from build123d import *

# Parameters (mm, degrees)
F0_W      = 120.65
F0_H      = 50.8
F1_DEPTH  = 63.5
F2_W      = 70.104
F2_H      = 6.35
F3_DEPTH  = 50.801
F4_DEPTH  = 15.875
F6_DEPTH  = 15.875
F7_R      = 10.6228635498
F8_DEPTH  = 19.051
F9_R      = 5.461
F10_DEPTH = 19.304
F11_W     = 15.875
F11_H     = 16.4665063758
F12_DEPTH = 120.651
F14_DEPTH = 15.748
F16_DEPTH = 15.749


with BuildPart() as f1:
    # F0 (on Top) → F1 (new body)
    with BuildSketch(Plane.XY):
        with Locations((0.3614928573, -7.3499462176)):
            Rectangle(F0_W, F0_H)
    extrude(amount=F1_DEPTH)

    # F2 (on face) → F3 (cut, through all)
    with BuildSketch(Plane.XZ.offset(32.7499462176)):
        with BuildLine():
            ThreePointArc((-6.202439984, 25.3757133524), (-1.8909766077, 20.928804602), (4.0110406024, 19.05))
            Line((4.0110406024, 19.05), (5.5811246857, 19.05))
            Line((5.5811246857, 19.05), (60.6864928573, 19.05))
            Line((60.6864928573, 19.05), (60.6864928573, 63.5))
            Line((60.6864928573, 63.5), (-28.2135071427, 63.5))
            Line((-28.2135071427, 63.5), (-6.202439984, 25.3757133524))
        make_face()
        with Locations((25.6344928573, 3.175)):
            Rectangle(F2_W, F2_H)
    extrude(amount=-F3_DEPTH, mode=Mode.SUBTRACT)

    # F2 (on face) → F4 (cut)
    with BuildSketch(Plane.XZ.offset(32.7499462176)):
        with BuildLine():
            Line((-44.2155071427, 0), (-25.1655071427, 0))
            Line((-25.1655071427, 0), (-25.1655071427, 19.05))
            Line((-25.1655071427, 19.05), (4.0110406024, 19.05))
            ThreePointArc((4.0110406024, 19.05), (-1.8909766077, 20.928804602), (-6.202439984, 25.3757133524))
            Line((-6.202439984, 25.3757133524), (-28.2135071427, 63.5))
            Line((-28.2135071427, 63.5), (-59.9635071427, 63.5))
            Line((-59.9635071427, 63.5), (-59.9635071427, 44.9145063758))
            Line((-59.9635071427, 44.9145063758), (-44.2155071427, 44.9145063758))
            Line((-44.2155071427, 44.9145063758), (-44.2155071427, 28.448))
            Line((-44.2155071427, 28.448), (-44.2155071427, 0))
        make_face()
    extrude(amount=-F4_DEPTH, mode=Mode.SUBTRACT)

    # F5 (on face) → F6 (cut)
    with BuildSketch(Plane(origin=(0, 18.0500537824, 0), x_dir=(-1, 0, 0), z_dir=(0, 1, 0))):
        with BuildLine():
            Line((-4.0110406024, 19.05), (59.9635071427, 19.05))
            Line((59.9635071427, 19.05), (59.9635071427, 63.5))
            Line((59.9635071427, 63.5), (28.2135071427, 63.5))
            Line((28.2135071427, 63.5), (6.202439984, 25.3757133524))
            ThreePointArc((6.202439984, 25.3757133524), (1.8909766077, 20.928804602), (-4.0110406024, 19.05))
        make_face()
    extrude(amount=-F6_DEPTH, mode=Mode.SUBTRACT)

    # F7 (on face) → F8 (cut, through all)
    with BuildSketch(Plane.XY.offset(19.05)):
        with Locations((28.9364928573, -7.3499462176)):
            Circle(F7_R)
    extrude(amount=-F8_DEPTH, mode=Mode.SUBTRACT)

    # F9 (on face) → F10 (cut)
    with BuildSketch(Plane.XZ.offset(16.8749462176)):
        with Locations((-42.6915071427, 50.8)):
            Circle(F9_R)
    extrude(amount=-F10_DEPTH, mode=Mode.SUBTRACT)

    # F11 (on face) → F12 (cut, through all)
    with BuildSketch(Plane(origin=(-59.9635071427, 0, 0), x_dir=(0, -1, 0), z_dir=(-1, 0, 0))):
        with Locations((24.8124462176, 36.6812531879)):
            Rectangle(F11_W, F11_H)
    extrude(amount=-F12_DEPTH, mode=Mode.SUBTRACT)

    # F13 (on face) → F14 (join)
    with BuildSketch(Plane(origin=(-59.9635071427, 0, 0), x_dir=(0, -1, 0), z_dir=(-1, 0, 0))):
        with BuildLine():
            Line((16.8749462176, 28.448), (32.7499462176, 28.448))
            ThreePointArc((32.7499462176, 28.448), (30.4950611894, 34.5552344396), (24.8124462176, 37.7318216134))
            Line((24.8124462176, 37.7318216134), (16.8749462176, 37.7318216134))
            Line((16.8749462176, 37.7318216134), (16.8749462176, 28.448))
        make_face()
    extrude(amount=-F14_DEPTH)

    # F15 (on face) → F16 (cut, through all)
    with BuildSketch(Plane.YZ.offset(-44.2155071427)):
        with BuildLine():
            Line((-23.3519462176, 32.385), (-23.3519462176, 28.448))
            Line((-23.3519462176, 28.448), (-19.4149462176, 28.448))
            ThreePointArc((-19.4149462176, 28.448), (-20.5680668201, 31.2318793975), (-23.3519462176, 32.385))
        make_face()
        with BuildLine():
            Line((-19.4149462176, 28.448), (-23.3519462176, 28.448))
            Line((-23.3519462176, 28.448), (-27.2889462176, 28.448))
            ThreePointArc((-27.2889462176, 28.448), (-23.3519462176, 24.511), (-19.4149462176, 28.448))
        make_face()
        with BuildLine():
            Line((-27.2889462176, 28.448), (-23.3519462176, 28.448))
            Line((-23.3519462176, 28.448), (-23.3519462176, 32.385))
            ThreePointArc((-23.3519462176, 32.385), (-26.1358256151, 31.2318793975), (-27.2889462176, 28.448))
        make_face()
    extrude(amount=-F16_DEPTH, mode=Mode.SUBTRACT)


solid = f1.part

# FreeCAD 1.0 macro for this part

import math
import FreeCAD as App
import Part
import Sketcher

V = App.Vector
Q = App.Units.Quantity


def add_polygon(sketch, points):
    """Adds a closed chain of lines whose ends are joined by coincident constraints."""
    first, n = sketch.GeometryCount, len(points)
    for a, b in zip(points, points[1:] + points[:1]):
        sketch.addGeometry(Part.LineSegment(App.Vector(*a, 0), App.Vector(*b, 0)), False)
    for i in range(n):
        sketch.addConstraint(Sketcher.Constraint("Coincident", first + i, 2, first + (i + 1) % n, 1))

doc = App.newDocument("Part")
params = doc.addObject("Spreadsheet::Sheet", "Params")
for row, (alias, value) in enumerate([
    ("sketch1_height", "2 in"),
    ("sketch1_width", "4.75 in"),
    ("pad1_length", "2.5 in"),
    ("sketch2_radius", "0.5 in"),
    ("sketch2_width", "3.5 in"),
    ("sketch2_width2", "2.76 in"),
    ("sketch2_height", "1.75 in"),
    ("sketch2_height2", "0.25 in"),
    ("sketch3_radius", "0.5 in"),
    ("sketch3_width", "0.75 in"),
    ("sketch3_width2", "1.25 in"),
    ("sketch3_width3", "0.62 in"),
    ("pocket2_length", "0.625 in"),
    ("sketch4_radius", "0.5 in"),
    ("sketch4_width", "1.25 in"),
    ("sketch4_height", "1.75 in"),
    ("pocket3_length", "0.625 in"),
    ("sketch6_diameter", "0.43 in"),
    ("pocket5_length", "0.76 in"),
    ("sketch7_width", "0.625 in"),
    ("sketch8_radius", "0.37 in"),
    ("sketch8_width", "0.625 in"),
    ("sketch8_width2", "0.3125 in"),
    ("pad2_length", "0.62 in"),
    ("sketch9_radius", "0.155 in"),
], start=1):
    params.set(f"A{row}", alias)
    params.set(f"B{row}", "=" + value)
    params.setAlias(f"B{row}", alias)

body = doc.addObject("PartDesign::Body", "Body")

# Sketch on XY plane
sketch1 = doc.addObject("Sketcher::SketchObject", "Sketch")
body.addObject(sketch1)
sketch1.AttachmentSupport = (doc.XY_Plane, [""])
sketch1.MapMode = "FlatFace"
add_polygon(sketch1, [(-60, 18), (-60, -33), (61, -33), (61, 18)])  # lines 0-3
sketch1.addConstraint(Sketcher.Constraint("Vertical", 0))
sketch1.addConstraint(Sketcher.Constraint("Horizontal", 1))
sketch1.addConstraint(Sketcher.Constraint("Vertical", 2))
sketch1.addConstraint(Sketcher.Constraint("Horizontal", 3))
sketch1.addConstraint(Sketcher.Constraint("DistanceY", 0, 2, 0, 1, Q("2 in")))
sketch1.addConstraint(Sketcher.Constraint("DistanceX", 1, 1, 1, 2, Q("4.75 in")))
sketch1.addConstraint(Sketcher.Constraint("DistanceX", 0, 2, -1, 1, 59.963507))
sketch1.addConstraint(Sketcher.Constraint("DistanceY", 0, 2, -1, 1, 32.749946))
sketch1.setExpression("Constraints[8]", "Params.sketch1_height")
sketch1.setExpression("Constraints[9]", "Params.sketch1_width")
pad1 = doc.addObject("PartDesign::Pad", "Pad")
body.addObject(pad1)
pad1.Profile = sketch1
pad1.setExpression("Length", "Params.pad1_length")

# Sketch on XZ plane
sketch2 = doc.addObject("Sketcher::SketchObject", "Sketch001")
body.addObject(sketch2)
sketch2.AttachmentSupport = (doc.XZ_Plane, [""])
sketch2.MapMode = "FlatFace"
sketch2.AttachmentOffset = App.Placement(V(0, 0, 32.749946), App.Rotation())
sketch2.addGeometry(Part.ArcOfCircle(Part.Circle(V(5, 32, 0), V(0, 0, 1), 13), math.radians(-150), math.radians(-94)), False)  # 0
sketch2.addGeometry(Part.LineSegment(V(4, 19, 0), V(61, 19, 0)), False)  # 1
sketch2.addGeometry(Part.LineSegment(V(61, 19, 0), V(61, 64, 0)), False)  # 2
sketch2.addGeometry(Part.LineSegment(V(61, 64, 0), V(-28, 64, 0)), False)  # 3
sketch2.addGeometry(Part.LineSegment(V(-28, 64, 0), V(-6, 25, 0)), False)  # 4
add_polygon(sketch2, [(-9, 6), (-9, 0), (61, 0), (61, 6)])  # lines 5-8
sketch2.addConstraint(Sketcher.Constraint("Coincident", 0, 2, 1, 1))
sketch2.addConstraint(Sketcher.Constraint("Coincident", 1, 2, 2, 1))
sketch2.addConstraint(Sketcher.Constraint("Coincident", 2, 2, 3, 1))
sketch2.addConstraint(Sketcher.Constraint("Coincident", 3, 2, 4, 1))
sketch2.addConstraint(Sketcher.Constraint("Tangent", 4, 2, 0, 1))
sketch2.addConstraint(Sketcher.Constraint("Horizontal", 1))
sketch2.addConstraint(Sketcher.Constraint("Vertical", 2))
sketch2.addConstraint(Sketcher.Constraint("Horizontal", 3))
sketch2.addConstraint(Sketcher.Constraint("Vertical", 5))
sketch2.addConstraint(Sketcher.Constraint("Horizontal", 6))
sketch2.addConstraint(Sketcher.Constraint("Vertical", 7))
sketch2.addConstraint(Sketcher.Constraint("Horizontal", 8))
sketch2.addConstraint(Sketcher.Constraint("PointOnObject", 5, 2, -1))
sketch2.addConstraint(Sketcher.Constraint("Vertical", 2, 2, 6, 2))
sketch2.addConstraint(Sketcher.Constraint("Radius", 0, Q("0.5 in")))
sketch2.addConstraint(Sketcher.Constraint("DistanceX", 3, 2, 3, 1, Q("3.5 in")))
sketch2.addConstraint(Sketcher.Constraint("Angle", 4, Q("-60 deg")))
sketch2.addConstraint(Sketcher.Constraint("DistanceX", 6, 1, 6, 2, Q("2.76 in")))
sketch2.addConstraint(Sketcher.Constraint("DistanceY", 2, 1, 2, 2, Q("1.75 in")))
sketch2.addConstraint(Sketcher.Constraint("DistanceY", 5, 2, 5, 1, Q("0.25 in")))
sketch2.addConstraint(Sketcher.Constraint("DistanceY", -1, 1, 2, 2, Q("2.5 in")))
sketch2.addConstraint(Sketcher.Constraint("DistanceX", 1, 1, 1, 2, 56.675452))
sketch2.addConstraint(Sketcher.Constraint("DistanceX", -1, 1, 0, 2, 4.011041))
sketch2.setExpression("Constraints[18]", "Params.sketch2_radius")
sketch2.setExpression("Constraints[19]", "Params.sketch2_width")
sketch2.setExpression("Constraints[21]", "Params.sketch2_width2")
sketch2.setExpression("Constraints[22]", "Params.sketch2_height")
sketch2.setExpression("Constraints[23]", "Params.sketch2_height2")
pocket1 = doc.addObject("PartDesign::Pocket", "Pocket")
body.addObject(pocket1)
pocket1.Profile = sketch2
pocket1.Type = "ThroughAll"

# Sketch on XZ plane
sketch3 = doc.addObject("Sketcher::SketchObject", "Sketch002")
body.addObject(sketch3)
sketch3.AttachmentSupport = (doc.XZ_Plane, [""])
sketch3.MapMode = "FlatFace"
sketch3.AttachmentOffset = App.Placement(V(0, 0, 32.749946), App.Rotation())
sketch3.addGeometry(Part.LineSegment(V(-44, 0, 0), V(-25, 0, 0)), False)
sketch3.addGeometry(Part.LineSegment(V(-25, 0, 0), V(-25, 19, 0)), False)
sketch3.addGeometry(Part.LineSegment(V(-25, 19, 0), V(4, 19, 0)), False)
sketch3.addGeometry(Part.ArcOfCircle(Part.Circle(V(5, 32, 0), V(0, 0, 1), 13), math.radians(-150), math.radians(-94)), False)
sketch3.addGeometry(Part.LineSegment(V(-6, 25, 0), V(-28, 64, 0)), False)
sketch3.addGeometry(Part.LineSegment(V(-28, 64, 0), V(-60, 64, 0)), False)
sketch3.addGeometry(Part.LineSegment(V(-60, 64, 0), V(-60, 45, 0)), False)
sketch3.addGeometry(Part.LineSegment(V(-60, 45, 0), V(-44, 45, 0)), False)
sketch3.addGeometry(Part.LineSegment(V(-44, 45, 0), V(-44, 0, 0)), False)
sketch3.addConstraint(Sketcher.Constraint("Coincident", 0, 2, 1, 1))
sketch3.addConstraint(Sketcher.Constraint("Coincident", 1, 2, 2, 1))
sketch3.addConstraint(Sketcher.Constraint("Coincident", 2, 2, 3, 2))
sketch3.addConstraint(Sketcher.Constraint("Tangent", 3, 1, 4, 1))
sketch3.addConstraint(Sketcher.Constraint("Coincident", 4, 2, 5, 1))
sketch3.addConstraint(Sketcher.Constraint("Coincident", 5, 2, 6, 1))
sketch3.addConstraint(Sketcher.Constraint("Coincident", 6, 2, 7, 1))
sketch3.addConstraint(Sketcher.Constraint("Coincident", 7, 2, 8, 1))
sketch3.addConstraint(Sketcher.Constraint("Coincident", 8, 2, 0, 1))
sketch3.addConstraint(Sketcher.Constraint("Horizontal", 0))
sketch3.addConstraint(Sketcher.Constraint("Vertical", 1))
sketch3.addConstraint(Sketcher.Constraint("Horizontal", 2))
sketch3.addConstraint(Sketcher.Constraint("Horizontal", 5))
sketch3.addConstraint(Sketcher.Constraint("Vertical", 6))
sketch3.addConstraint(Sketcher.Constraint("Horizontal", 7))
sketch3.addConstraint(Sketcher.Constraint("Vertical", 8))
sketch3.addConstraint(Sketcher.Constraint("PointOnObject", 0, 2, -1))
sketch3.addConstraint(Sketcher.Constraint("Equal", 0, 1))
sketch3.addConstraint(Sketcher.Constraint("Radius", 3, Q("0.5 in")))
sketch3.addConstraint(Sketcher.Constraint("Angle", 4, Q("120 deg")))
sketch3.addConstraint(Sketcher.Constraint("DistanceX", 0, 1, 0, 2, Q("0.75 in")))
sketch3.addConstraint(Sketcher.Constraint("DistanceX", 5, 2, 5, 1, Q("1.25 in")))
sketch3.addConstraint(Sketcher.Constraint("DistanceX", 7, 1, 7, 2, Q("0.62 in")))
sketch3.addConstraint(Sketcher.Constraint("DistanceY", -1, 1, 4, 2, Q("2.5 in")))
sketch3.addConstraint(Sketcher.Constraint("DistanceX", 2, 1, 2, 2, 29.176548))
sketch3.addConstraint(Sketcher.Constraint("DistanceY", 6, 2, 6, 1, 18.585494))
sketch3.addConstraint(Sketcher.Constraint("DistanceX", -1, 1, 2, 2, 4.011041))
sketch3.setExpression("Constraints[18]", "Params.sketch3_radius")
sketch3.setExpression("Constraints[20]", "Params.sketch3_width")
sketch3.setExpression("Constraints[21]", "Params.sketch3_width2")
sketch3.setExpression("Constraints[22]", "Params.sketch3_width3")
pocket2 = doc.addObject("PartDesign::Pocket", "Pocket001")
body.addObject(pocket2)
pocket2.Profile = sketch3
pocket2.setExpression("Length", "Params.pocket2_length")

# Sketch on XZ plane
sketch4 = doc.addObject("Sketcher::SketchObject", "Sketch003")
body.addObject(sketch4)
sketch4.AttachmentSupport = (doc.XZ_Plane, [""])
sketch4.MapMode = "FlatFace"
sketch4.AttachmentOffset = App.Placement(V(0, 0, -18.050054), App.Rotation())
sketch4.addGeometry(Part.LineSegment(V(4, 19, 0), V(-60, 19, 0)), False)
sketch4.addGeometry(Part.LineSegment(V(-60, 19, 0), V(-60, 64, 0)), False)
sketch4.addGeometry(Part.LineSegment(V(-60, 64, 0), V(-28, 64, 0)), False)
sketch4.addGeometry(Part.LineSegment(V(-28, 64, 0), V(-6, 25, 0)), False)
sketch4.addGeometry(Part.ArcOfCircle(Part.Circle(V(5, 32, 0), V(0, 0, 1), 13), math.radians(-150), math.radians(-94)), False)
sketch4.addConstraint(Sketcher.Constraint("Coincident", 0, 2, 1, 1))
sketch4.addConstraint(Sketcher.Constraint("Coincident", 1, 2, 2, 1))
sketch4.addConstraint(Sketcher.Constraint("Coincident", 2, 2, 3, 1))
sketch4.addConstraint(Sketcher.Constraint("Tangent", 3, 2, 4, 1))
sketch4.addConstraint(Sketcher.Constraint("Coincident", 4, 2, 0, 1))
sketch4.addConstraint(Sketcher.Constraint("Horizontal", 0))
sketch4.addConstraint(Sketcher.Constraint("Vertical", 1))
sketch4.addConstraint(Sketcher.Constraint("Horizontal", 2))
sketch4.addConstraint(Sketcher.Constraint("Radius", 4, Q("0.5 in")))
sketch4.addConstraint(Sketcher.Constraint("Angle", 3, Q("-60 deg")))
sketch4.addConstraint(Sketcher.Constraint("DistanceX", 2, 1, 2, 2, Q("1.25 in")))
sketch4.addConstraint(Sketcher.Constraint("DistanceY", 1, 1, 1, 2, Q("1.75 in")))
sketch4.addConstraint(Sketcher.Constraint("DistanceY", -1, 1, 1, 2, Q("2.5 in")))
sketch4.addConstraint(Sketcher.Constraint("DistanceX", 0, 2, 0, 1, 63.974548))
sketch4.addConstraint(Sketcher.Constraint("DistanceX", 3, 2, -1, 1, 6.20244))
sketch4.setExpression("Constraints[8]", "Params.sketch4_radius")
sketch4.setExpression("Constraints[10]", "Params.sketch4_width")
sketch4.setExpression("Constraints[11]", "Params.sketch4_height")
pocket3 = doc.addObject("PartDesign::Pocket", "Pocket002")
body.addObject(pocket3)
pocket3.Profile = sketch4
pocket3.setExpression("Length", "Params.pocket3_length")
pocket3.Reversed = True

# Sketch on XY plane
sketch5 = doc.addObject("Sketcher::SketchObject", "Sketch004")
body.addObject(sketch5)
sketch5.AttachmentSupport = (doc.XY_Plane, [""])
sketch5.MapMode = "FlatFace"
sketch5.AttachmentOffset = App.Placement(V(0, 0, 0.75 * 25.4), App.Rotation())
sketch5.addGeometry(Part.Circle(V(29, -7, 0), V(0, 0, 1), 11), False)
sketch5.addConstraint(Sketcher.Constraint("Diameter", 0, 21.245727))
sketch5.addConstraint(Sketcher.Constraint("DistanceX", -1, 1, 0, 3, 28.936493))
sketch5.addConstraint(Sketcher.Constraint("DistanceY", 0, 3, -1, 1, 7.349946))
pocket4 = doc.addObject("PartDesign::Pocket", "Pocket003")
body.addObject(pocket4)
pocket4.Profile = sketch5
pocket4.Type = "ThroughAll"

# Sketch on XZ plane
sketch6 = doc.addObject("Sketcher::SketchObject", "Sketch005")
body.addObject(sketch6)
sketch6.AttachmentSupport = (doc.XZ_Plane, [""])
sketch6.MapMode = "FlatFace"
sketch6.AttachmentOffset = App.Placement(V(0, 0, 16.874946), App.Rotation())
sketch6.addGeometry(Part.Circle(V(-43, 51, 0), V(0, 0, 1), 5), False)
sketch6.addConstraint(Sketcher.Constraint("Diameter", 0, Q("0.43 in")))
sketch6.addConstraint(Sketcher.Constraint("DistanceY", -1, 1, 0, 3, Q("2 in")))
sketch6.addConstraint(Sketcher.Constraint("DistanceX", 0, 3, -1, 1, 42.691507))
sketch6.setExpression("Constraints[0]", "Params.sketch6_diameter")
pocket5 = doc.addObject("PartDesign::Pocket", "Pocket004")
body.addObject(pocket5)
pocket5.Profile = sketch6
pocket5.setExpression("Length", "Params.pocket5_length")

# Sketch on YZ plane
sketch7 = doc.addObject("Sketcher::SketchObject", "Sketch006")
body.addObject(sketch7)
sketch7.AttachmentSupport = (doc.YZ_Plane, [""])
sketch7.MapMode = "FlatFace"
sketch7.AttachmentOffset = App.Placement(V(0, 0, -59.963507), App.Rotation())
add_polygon(sketch7, [(-17, 45), (-17, 28), (-33, 28), (-33, 45)])  # lines 0-3
sketch7.addConstraint(Sketcher.Constraint("Vertical", 0))
sketch7.addConstraint(Sketcher.Constraint("Horizontal", 1))
sketch7.addConstraint(Sketcher.Constraint("Vertical", 2))
sketch7.addConstraint(Sketcher.Constraint("Horizontal", 3))
sketch7.addConstraint(Sketcher.Constraint("DistanceX", 1, 2, 1, 1, Q("0.625 in")))
sketch7.addConstraint(Sketcher.Constraint("DistanceY", -1, 1, 0, 2, Q("1.12 in")))
sketch7.addConstraint(Sketcher.Constraint("DistanceY", 0, 2, 0, 1, 16.466506))
sketch7.addConstraint(Sketcher.Constraint("DistanceX", 0, 2, -1, 1, 16.874946))
sketch7.setExpression("Constraints[8]", "Params.sketch7_width")
pocket6 = doc.addObject("PartDesign::Pocket", "Pocket005")
body.addObject(pocket6)
pocket6.Profile = sketch7
pocket6.Type = "ThroughAll"
pocket6.Reversed = True

# Sketch on YZ plane
sketch8 = doc.addObject("Sketcher::SketchObject", "Sketch007")
body.addObject(sketch8)
sketch8.AttachmentSupport = (doc.YZ_Plane, [""])
sketch8.MapMode = "FlatFace"
sketch8.AttachmentOffset = App.Placement(V(0, 0, -59.963507), App.Rotation())
sketch8.addGeometry(Part.LineSegment(V(-17, 28, 0), V(-33, 28, 0)), False)
sketch8.addGeometry(Part.ArcOfCircle(Part.Circle(V(-23, 28, 0), V(0, 0, 1), 9), math.radians(99), math.radians(180)), False)
sketch8.addGeometry(Part.LineSegment(V(-25, 38, 0), V(-17, 38, 0)), False)
sketch8.addGeometry(Part.LineSegment(V(-17, 38, 0), V(-17, 28, 0)), False)
sketch8.addConstraint(Sketcher.Constraint("Coincident", 0, 2, 1, 2))
sketch8.addConstraint(Sketcher.Constraint("Coincident", 1, 1, 2, 1))
sketch8.addConstraint(Sketcher.Constraint("Coincident", 2, 2, 3, 1))
sketch8.addConstraint(Sketcher.Constraint("Coincident", 3, 2, 0, 1))
sketch8.addConstraint(Sketcher.Constraint("Horizontal", 0))
sketch8.addConstraint(Sketcher.Constraint("Horizontal", 2))
sketch8.addConstraint(Sketcher.Constraint("Vertical", 3))
sketch8.addConstraint(Sketcher.Constraint("Horizontal", 1, 3, 0, 2))
sketch8.addConstraint(Sketcher.Constraint("Radius", 1, Q("0.37 in")))
sketch8.addConstraint(Sketcher.Constraint("DistanceX", 0, 2, 0, 1, Q("0.625 in")))
sketch8.addConstraint(Sketcher.Constraint("DistanceX", 2, 1, 2, 2, Q("0.3125 in")))
sketch8.addConstraint(Sketcher.Constraint("DistanceY", -1, 1, 1, 3, Q("1.12 in")))
sketch8.addConstraint(Sketcher.Constraint("DistanceX", 1, 3, -1, 1, 23.351946))
sketch8.setExpression("Constraints[8]", "Params.sketch8_radius")
sketch8.setExpression("Constraints[9]", "Params.sketch8_width")
sketch8.setExpression("Constraints[10]", "Params.sketch8_width2")
pad2 = doc.addObject("PartDesign::Pad", "Pad001")
body.addObject(pad2)
pad2.Profile = sketch8
pad2.setExpression("Length", "Params.pad2_length")

# Sketch on YZ plane
sketch9 = doc.addObject("Sketcher::SketchObject", "Sketch008")
body.addObject(sketch9)
sketch9.AttachmentSupport = (doc.YZ_Plane, [""])
sketch9.MapMode = "FlatFace"
sketch9.AttachmentOffset = App.Placement(V(0, 0, -44.215507), App.Rotation())
sketch9.addGeometry(Part.ArcOfCircle(Part.Circle(V(-23.4, 28.4, 0), V(0, 0, 1), 3.9), math.radians(180), math.radians(360)), False)
sketch9.addGeometry(Part.ArcOfCircle(Part.Circle(V(-23.4, 28.4, 0), V(0, 0, 1), 3.9), math.radians(0), math.radians(90)), False)
sketch9.addGeometry(Part.ArcOfCircle(Part.Circle(V(-23.4, 28.4, 0), V(0, 0, 1), 3.9), math.radians(90), math.radians(180)), False)
sketch9.addConstraint(Sketcher.Constraint("Tangent", 0, 2, 1, 1))
sketch9.addConstraint(Sketcher.Constraint("Tangent", 1, 2, 2, 1))
sketch9.addConstraint(Sketcher.Constraint("Tangent", 2, 2, 0, 1))
sketch9.addConstraint(Sketcher.Constraint("Horizontal", 2, 3, 0, 2))
sketch9.addConstraint(Sketcher.Constraint("Horizontal", 0, 2, 2, 2))
sketch9.addConstraint(Sketcher.Constraint("Vertical", 2, 3, 1, 2))
sketch9.addConstraint(Sketcher.Constraint("Radius", 0, Q("0.155 in")))
sketch9.addConstraint(Sketcher.Constraint("DistanceY", -1, 1, 0, 3, Q("1.12 in")))
sketch9.addConstraint(Sketcher.Constraint("DistanceX", 0, 3, -1, 1, 23.351946))
sketch9.setExpression("Constraints[6]", "Params.sketch9_radius")
pocket7 = doc.addObject("PartDesign::Pocket", "Pocket006")
body.addObject(pocket7)
pocket7.Profile = sketch9
pocket7.Type = "ThroughAll"

doc.recompute()
